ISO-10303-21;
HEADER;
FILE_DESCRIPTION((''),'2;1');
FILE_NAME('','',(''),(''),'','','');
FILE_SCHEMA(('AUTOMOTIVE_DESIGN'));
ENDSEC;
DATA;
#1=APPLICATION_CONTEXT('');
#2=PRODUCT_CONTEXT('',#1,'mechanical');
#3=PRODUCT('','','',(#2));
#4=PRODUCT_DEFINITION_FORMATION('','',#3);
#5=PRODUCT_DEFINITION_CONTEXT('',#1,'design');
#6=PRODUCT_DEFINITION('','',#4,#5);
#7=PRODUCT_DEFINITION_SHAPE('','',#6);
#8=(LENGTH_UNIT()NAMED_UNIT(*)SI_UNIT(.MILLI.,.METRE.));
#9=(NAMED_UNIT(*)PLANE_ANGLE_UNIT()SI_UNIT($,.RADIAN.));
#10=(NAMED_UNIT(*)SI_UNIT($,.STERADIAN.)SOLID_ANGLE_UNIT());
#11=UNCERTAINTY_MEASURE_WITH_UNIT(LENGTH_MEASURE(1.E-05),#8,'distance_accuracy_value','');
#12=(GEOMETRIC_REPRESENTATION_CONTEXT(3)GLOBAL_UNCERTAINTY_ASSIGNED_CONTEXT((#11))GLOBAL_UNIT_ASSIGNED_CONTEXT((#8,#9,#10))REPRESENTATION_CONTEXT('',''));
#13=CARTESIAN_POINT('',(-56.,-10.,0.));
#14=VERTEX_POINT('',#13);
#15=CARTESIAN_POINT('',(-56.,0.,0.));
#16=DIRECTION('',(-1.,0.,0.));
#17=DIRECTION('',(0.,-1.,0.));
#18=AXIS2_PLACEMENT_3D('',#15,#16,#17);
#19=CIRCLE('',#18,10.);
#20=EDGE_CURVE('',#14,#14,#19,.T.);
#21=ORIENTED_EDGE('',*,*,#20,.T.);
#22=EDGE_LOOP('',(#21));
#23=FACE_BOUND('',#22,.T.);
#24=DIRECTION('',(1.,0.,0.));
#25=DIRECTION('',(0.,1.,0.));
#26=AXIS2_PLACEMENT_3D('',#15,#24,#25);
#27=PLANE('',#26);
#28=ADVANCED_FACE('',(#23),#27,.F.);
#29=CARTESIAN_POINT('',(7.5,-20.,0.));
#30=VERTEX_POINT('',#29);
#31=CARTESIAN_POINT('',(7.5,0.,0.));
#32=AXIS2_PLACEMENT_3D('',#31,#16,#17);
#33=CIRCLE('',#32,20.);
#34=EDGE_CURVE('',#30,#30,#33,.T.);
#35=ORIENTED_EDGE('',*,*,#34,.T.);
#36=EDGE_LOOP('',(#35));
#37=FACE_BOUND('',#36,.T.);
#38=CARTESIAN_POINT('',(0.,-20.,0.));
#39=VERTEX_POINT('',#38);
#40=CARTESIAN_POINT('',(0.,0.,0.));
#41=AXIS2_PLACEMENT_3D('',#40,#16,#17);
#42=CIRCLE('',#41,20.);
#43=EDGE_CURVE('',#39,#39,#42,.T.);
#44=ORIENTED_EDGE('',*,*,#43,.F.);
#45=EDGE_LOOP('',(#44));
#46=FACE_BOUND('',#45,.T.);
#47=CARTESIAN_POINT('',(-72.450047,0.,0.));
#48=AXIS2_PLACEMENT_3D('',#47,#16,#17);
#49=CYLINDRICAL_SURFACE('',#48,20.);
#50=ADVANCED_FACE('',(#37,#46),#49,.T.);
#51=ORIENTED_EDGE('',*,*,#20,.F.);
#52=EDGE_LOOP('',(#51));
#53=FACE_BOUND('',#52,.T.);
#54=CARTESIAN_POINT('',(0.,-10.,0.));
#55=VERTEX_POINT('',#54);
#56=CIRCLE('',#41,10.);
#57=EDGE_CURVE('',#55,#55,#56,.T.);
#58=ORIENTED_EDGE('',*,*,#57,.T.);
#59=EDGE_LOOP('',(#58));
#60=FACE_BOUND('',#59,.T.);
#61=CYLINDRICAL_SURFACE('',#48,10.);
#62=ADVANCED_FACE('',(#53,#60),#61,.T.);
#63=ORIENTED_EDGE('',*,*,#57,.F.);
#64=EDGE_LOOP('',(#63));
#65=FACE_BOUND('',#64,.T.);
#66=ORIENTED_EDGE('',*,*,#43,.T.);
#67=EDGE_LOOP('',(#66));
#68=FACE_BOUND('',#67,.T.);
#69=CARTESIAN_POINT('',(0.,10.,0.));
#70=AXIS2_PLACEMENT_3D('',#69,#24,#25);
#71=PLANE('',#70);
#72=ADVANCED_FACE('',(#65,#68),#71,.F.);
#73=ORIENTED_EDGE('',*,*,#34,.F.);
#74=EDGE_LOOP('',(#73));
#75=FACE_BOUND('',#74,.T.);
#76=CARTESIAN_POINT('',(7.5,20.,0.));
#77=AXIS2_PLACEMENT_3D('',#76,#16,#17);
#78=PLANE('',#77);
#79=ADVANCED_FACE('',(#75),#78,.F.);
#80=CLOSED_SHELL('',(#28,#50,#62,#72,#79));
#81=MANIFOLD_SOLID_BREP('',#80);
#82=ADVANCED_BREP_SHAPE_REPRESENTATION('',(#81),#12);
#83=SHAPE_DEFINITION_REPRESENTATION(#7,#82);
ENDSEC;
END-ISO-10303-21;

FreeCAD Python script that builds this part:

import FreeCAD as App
import Part
import Sketcher

V = App.Vector
Q = App.Units.Quantity

doc = App.newDocument("Part")
body = doc.addObject("PartDesign::Body", "Body")

# Sketch on XY plane
sketch1 = doc.addObject("Sketcher::SketchObject", "Sketch")
body.addObject(sketch1)
sketch1.AttachmentSupport = (doc.XY_Plane, [""])
sketch1.MapMode = "FlatFace"
sketch1.addGeometry([
    Part.LineSegment(V(0, 10, 0), V(-56, 10, 0)),  # 0
    Part.LineSegment(V(-56, 10, 0), V(-56, 0, 0)),  # 1
    Part.LineSegment(V(-56, 0, 0), V(7.5, 0, 0)),  # 2
    Part.LineSegment(V(7.5, 0, 0), V(7.5, 20, 0)),  # 3
    Part.LineSegment(V(7.5, 20, 0), V(0, 20, 0)),  # 4
    Part.LineSegment(V(0, 20, 0), V(0, 10, 0)),  # 5
], False)
sketch1.addConstraint([
    Sketcher.Constraint("Coincident", 0, 2, 1, 1),
    Sketcher.Constraint("Coincident", 1, 2, 2, 1),
    Sketcher.Constraint("Coincident", 2, 2, 3, 1),
    Sketcher.Constraint("Coincident", 3, 2, 4, 1),
    Sketcher.Constraint("Coincident", 4, 2, 5, 1),
    Sketcher.Constraint("Coincident", 5, 2, 0, 1),
    Sketcher.Constraint("Horizontal", 0),
    Sketcher.Constraint("Vertical", 1),
    Sketcher.Constraint("Horizontal", 2),
    Sketcher.Constraint("Vertical", 3),
    Sketcher.Constraint("Horizontal", 4),
    Sketcher.Constraint("Vertical", 5),
    Sketcher.Constraint("PointOnObject", 1, 2, -1),
    Sketcher.Constraint("PointOnObject", 4, 2, -2),
    Sketcher.Constraint("Equal", 1, 5),
    Sketcher.Constraint("DistanceX", 0, 2, 0, 1, Q("56 mm")),
    Sketcher.Constraint("DistanceY", 1, 2, 1, 1, Q("10 mm")),
    Sketcher.Constraint("DistanceX", 2, 1, 2, 2, Q("63.5 mm")),
])
revolution = doc.addObject("PartDesign::Revolution", "Revolution")
body.addObject(revolution)
revolution.Profile = sketch1
revolution.ReferenceAxis = (sketch1, ["H_Axis"])
revolution.Angle = 360

doc.recompute()
